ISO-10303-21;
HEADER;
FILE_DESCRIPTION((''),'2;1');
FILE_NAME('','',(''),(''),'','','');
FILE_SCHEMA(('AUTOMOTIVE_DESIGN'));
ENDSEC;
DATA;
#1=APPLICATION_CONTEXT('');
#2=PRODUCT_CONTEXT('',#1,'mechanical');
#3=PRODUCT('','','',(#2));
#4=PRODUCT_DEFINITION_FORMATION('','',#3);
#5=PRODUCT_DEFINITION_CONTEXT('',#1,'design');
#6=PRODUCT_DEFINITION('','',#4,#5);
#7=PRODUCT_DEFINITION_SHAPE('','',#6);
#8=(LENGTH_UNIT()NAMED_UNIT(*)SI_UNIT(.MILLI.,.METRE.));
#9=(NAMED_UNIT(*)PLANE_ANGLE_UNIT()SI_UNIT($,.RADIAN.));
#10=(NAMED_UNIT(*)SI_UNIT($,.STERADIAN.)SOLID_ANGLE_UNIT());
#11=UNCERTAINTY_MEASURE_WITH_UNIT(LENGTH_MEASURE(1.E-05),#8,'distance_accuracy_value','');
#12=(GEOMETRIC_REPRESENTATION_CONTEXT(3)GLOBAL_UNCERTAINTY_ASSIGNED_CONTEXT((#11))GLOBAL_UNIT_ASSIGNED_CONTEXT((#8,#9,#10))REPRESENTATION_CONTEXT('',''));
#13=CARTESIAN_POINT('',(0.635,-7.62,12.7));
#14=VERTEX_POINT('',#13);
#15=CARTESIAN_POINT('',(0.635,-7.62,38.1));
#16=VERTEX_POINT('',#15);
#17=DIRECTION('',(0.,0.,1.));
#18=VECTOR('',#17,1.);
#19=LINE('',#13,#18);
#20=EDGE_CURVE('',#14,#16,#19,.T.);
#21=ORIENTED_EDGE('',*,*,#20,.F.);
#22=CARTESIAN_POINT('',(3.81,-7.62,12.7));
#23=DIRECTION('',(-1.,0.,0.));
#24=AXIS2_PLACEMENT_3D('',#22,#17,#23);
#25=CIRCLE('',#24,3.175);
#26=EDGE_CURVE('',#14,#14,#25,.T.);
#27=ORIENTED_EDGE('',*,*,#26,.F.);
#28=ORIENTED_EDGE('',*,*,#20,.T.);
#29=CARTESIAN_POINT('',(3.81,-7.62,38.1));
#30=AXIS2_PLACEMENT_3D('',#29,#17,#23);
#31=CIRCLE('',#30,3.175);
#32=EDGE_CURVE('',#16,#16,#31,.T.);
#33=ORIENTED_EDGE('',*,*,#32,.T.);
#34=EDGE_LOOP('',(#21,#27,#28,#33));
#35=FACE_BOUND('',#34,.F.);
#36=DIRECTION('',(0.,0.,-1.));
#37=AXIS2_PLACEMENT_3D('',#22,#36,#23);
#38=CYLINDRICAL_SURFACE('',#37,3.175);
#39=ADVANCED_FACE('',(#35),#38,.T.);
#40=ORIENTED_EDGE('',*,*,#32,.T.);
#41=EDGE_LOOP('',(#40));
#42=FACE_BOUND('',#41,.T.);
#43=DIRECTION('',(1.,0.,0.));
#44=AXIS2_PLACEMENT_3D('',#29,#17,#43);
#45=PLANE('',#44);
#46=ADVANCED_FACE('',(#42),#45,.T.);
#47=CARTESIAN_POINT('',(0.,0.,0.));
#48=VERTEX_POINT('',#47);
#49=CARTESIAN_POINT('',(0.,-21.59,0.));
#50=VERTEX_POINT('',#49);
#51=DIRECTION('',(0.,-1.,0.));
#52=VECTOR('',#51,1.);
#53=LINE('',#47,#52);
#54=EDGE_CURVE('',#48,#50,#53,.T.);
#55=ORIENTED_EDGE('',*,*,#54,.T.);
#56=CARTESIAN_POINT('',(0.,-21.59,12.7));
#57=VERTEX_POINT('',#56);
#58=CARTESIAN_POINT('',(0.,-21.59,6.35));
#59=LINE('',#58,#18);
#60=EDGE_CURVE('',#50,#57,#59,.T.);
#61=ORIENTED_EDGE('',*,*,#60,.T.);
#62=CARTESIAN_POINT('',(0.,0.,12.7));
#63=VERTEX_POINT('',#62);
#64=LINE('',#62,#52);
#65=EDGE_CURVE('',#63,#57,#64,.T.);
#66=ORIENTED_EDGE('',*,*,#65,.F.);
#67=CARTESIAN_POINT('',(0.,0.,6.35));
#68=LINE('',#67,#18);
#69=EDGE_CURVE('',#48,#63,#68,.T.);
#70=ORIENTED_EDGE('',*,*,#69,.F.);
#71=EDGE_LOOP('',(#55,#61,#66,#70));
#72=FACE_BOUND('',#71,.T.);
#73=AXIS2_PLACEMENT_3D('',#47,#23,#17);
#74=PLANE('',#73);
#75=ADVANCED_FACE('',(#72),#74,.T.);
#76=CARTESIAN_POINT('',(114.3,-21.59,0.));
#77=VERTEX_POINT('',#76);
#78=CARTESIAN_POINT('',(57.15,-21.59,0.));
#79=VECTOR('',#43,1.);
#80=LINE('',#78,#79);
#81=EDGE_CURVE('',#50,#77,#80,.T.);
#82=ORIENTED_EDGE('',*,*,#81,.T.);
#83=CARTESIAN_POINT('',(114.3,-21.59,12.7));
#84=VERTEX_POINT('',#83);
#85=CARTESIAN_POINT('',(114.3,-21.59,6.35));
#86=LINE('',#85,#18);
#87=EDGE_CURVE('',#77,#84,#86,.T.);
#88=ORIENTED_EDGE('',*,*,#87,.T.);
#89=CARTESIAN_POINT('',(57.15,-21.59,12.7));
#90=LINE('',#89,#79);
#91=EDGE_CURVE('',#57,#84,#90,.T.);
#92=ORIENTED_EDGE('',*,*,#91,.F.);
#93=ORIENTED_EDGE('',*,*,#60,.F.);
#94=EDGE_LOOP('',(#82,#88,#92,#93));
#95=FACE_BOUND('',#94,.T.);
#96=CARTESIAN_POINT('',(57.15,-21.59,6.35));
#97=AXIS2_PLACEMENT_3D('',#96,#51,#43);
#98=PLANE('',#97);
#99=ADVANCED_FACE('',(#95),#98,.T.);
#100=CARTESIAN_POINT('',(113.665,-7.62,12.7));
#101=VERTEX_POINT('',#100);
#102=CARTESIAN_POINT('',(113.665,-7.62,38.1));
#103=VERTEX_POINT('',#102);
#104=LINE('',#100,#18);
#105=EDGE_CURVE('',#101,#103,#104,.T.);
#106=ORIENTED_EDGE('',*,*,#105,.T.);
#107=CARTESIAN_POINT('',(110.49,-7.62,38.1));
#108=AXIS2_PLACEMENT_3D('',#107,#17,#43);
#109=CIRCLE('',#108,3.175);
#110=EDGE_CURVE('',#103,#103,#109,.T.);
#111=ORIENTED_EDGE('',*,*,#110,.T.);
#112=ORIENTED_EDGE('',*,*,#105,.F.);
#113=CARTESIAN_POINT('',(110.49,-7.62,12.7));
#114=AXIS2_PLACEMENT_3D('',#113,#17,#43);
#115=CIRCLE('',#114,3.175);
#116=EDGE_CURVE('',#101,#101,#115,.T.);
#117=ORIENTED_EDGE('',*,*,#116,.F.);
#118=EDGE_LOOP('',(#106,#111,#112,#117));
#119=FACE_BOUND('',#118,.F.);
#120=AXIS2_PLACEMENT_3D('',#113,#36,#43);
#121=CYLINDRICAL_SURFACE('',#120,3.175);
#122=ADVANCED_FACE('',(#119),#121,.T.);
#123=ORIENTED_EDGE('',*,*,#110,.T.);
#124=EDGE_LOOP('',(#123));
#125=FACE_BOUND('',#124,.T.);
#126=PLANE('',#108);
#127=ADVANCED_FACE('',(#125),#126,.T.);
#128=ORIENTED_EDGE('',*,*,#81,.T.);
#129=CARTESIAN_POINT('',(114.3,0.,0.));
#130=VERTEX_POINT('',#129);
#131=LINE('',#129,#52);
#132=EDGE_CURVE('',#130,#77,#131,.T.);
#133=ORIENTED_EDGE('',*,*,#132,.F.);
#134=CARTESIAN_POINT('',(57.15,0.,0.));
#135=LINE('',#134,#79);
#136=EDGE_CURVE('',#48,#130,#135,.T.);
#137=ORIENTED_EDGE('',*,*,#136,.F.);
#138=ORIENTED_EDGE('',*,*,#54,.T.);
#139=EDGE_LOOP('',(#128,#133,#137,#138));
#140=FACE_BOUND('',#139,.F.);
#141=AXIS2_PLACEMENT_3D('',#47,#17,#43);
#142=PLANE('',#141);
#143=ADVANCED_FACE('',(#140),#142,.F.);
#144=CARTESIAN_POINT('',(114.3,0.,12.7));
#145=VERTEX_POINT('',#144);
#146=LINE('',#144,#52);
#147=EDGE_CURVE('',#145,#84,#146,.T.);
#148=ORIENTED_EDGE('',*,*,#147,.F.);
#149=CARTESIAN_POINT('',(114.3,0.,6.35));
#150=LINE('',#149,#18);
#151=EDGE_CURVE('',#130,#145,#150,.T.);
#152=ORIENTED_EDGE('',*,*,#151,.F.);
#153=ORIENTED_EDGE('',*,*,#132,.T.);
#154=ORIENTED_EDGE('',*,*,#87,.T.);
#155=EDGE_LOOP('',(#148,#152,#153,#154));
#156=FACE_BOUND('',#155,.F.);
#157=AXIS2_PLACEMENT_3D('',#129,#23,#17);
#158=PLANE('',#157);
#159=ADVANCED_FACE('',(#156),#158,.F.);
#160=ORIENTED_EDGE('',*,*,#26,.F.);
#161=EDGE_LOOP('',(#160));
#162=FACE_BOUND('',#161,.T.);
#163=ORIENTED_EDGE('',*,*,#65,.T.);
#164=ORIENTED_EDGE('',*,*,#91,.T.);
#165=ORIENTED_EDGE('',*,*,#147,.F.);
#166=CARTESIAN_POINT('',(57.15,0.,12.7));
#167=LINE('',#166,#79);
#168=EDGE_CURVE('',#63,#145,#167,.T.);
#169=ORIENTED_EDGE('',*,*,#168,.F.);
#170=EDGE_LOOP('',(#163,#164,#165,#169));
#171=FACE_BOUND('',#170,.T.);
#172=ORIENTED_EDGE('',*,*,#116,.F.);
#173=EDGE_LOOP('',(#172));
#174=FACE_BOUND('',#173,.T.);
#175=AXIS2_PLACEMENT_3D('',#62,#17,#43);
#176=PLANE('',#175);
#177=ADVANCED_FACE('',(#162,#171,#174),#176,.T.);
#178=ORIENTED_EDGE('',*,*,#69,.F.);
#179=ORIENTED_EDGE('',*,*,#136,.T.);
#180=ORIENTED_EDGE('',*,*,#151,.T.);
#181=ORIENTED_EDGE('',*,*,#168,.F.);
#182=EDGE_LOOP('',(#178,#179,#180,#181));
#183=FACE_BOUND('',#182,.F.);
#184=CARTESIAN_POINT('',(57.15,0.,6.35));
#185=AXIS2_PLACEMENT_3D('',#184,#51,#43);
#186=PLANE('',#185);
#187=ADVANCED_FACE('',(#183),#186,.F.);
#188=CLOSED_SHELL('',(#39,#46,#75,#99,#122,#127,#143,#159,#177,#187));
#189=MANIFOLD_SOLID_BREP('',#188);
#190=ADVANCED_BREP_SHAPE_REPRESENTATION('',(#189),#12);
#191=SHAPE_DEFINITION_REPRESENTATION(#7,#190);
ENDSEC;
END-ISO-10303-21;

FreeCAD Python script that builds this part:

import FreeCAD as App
import Part
import Sketcher
from FreeCAD import Vector
Q = App.Units.Quantity


def add_polygon(sketch, points):
    """Adds a closed chain of lines whose ends are joined by coincident constraints."""
    first, n = sketch.GeometryCount, len(points)
    for a, b in zip(points, points[1:] + points[:1]):
        sketch.addGeometry(Part.LineSegment(App.Vector(*a, 0), App.Vector(*b, 0)), False)
    for i in range(n):
        sketch.addConstraint(Sketcher.Constraint("Coincident", first + i, 2, first + (i + 1) % n, 1))

doc = App.newDocument("Part")
body = doc.addObject("PartDesign::Body", "Body")

# Sketch on XZ plane
sketch1 = body.newObject("Sketcher::SketchObject", "Sketch")
sketch1.AttachmentSupport = (doc.getObject("XZ_Plane"), [""])
sketch1.MapMode = "FlatFace"
add_polygon(sketch1, [(0, 12.7), (0, 0), (114.3, 0), (114.3, 12.7)])  # lines 0-3
sketch1.addConstraint([
    Sketcher.Constraint("Vertical", 0),
    Sketcher.Constraint("Horizontal", 1),
    Sketcher.Constraint("Vertical", 2),
    Sketcher.Constraint("Horizontal", 3),
    Sketcher.Constraint("Coincident", 0, 2, -1, 1),
    Sketcher.Constraint("DistanceX", 1, 1, 1, 2, Q("4.5 in")),
    Sketcher.Constraint("DistanceY", 0, 2, 0, 1, Q("0.5 in")),
])
pad1 = body.newObject("PartDesign::Pad", "Pad")
pad1.Profile = sketch1
pad1.Length = Q("0.85 in")

# Sketch on XY plane
sketch2 = body.newObject("Sketcher::SketchObject", "Sketch001")
sketch2.AttachmentSupport = (doc.getObject("XY_Plane"), [""])
sketch2.MapMode = "FlatFace"
sketch2.AttachmentOffset = App.Placement(Vector(0, 0, 0.5 * 25.4), App.Rotation())
sketch2.addGeometry(Part.Circle(Vector(3.81, -7.62, 0), Vector(0, 0, 1), 3.175), False)
sketch2.addConstraint([
    Sketcher.Constraint("Diameter", 0, Q("0.25 in")),
    Sketcher.Constraint("DistanceY", 0, 3, -1, 1, Q("0.3 in")),
    Sketcher.Constraint("DistanceX", -1, 1, 0, 3, Q("0.15 in")),
])
pad2 = body.newObject("PartDesign::Pad", "Pad001")
pad2.Profile = sketch2
pad2.Length = Q("1 in")

# Sketch on XY plane
sketch3 = body.newObject("Sketcher::SketchObject", "Sketch002")
sketch3.AttachmentSupport = (doc.getObject("XY_Plane"), [""])
sketch3.MapMode = "FlatFace"
sketch3.AttachmentOffset = App.Placement(Vector(0, 0, 0.5 * 25.4), App.Rotation())
sketch3.addGeometry(Part.Circle(Vector(110.49, -7.62, 0), Vector(0, 0, 1), 3.175), False)
sketch3.addConstraint([
    Sketcher.Constraint("Diameter", 0, Q("0.25 in")),
    Sketcher.Constraint("DistanceY", 0, 3, -1, 1, Q("0.3 in")),
    Sketcher.Constraint("DistanceX", -1, 1, 0, 3, Q("4.35 in")),
])
pad3 = body.newObject("PartDesign::Pad", "Pad002")
pad3.Profile = sketch3
pad3.Length = Q("1 in")

doc.recompute()
